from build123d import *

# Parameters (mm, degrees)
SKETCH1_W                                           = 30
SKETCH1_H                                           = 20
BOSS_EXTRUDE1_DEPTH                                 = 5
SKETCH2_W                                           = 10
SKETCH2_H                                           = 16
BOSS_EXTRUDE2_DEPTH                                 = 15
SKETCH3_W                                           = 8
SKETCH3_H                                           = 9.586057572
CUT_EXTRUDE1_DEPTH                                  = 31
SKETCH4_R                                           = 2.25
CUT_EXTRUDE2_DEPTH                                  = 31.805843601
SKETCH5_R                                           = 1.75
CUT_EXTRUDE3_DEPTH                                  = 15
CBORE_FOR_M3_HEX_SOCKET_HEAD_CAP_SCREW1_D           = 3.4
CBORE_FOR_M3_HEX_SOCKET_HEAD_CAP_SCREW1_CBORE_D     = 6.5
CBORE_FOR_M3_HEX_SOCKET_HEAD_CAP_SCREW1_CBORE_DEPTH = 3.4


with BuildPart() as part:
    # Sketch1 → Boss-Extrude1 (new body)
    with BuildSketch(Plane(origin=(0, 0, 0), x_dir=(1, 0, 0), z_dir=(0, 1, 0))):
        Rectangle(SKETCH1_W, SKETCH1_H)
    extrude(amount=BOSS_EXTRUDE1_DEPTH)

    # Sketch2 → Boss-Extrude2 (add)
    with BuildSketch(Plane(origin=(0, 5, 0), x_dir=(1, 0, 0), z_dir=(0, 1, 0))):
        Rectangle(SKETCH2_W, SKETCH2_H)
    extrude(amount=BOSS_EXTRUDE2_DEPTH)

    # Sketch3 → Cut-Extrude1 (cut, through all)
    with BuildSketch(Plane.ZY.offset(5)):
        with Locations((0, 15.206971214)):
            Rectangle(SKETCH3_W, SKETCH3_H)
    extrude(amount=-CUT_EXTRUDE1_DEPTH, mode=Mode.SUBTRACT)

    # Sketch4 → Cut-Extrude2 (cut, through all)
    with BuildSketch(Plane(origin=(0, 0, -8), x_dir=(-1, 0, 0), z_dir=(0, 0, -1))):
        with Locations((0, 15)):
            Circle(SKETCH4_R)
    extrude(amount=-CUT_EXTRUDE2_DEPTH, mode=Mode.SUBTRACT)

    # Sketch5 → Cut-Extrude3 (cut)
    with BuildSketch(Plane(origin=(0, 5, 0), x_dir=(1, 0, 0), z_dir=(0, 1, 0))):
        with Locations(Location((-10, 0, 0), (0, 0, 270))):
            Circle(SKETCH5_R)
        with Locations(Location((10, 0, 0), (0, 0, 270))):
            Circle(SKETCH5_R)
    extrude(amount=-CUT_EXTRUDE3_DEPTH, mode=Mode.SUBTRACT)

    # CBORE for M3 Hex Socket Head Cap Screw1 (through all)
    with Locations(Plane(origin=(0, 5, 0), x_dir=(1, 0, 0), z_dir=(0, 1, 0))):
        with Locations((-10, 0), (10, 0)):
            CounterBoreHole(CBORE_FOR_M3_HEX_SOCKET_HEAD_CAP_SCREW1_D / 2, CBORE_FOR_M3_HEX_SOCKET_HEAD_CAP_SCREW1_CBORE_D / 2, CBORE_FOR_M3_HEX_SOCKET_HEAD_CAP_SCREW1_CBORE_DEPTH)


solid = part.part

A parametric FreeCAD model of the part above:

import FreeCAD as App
import Part
import Sketcher

V = App.Vector
Q = App.Units.Quantity


def add_polygon(sketch, points):
    """Adds a closed chain of lines whose ends are joined by coincident constraints."""
    first, n = sketch.GeometryCount, len(points)
    for a, b in zip(points, points[1:] + points[:1]):
        sketch.addGeometry(Part.LineSegment(App.Vector(*a, 0), App.Vector(*b, 0)), False)
    for i in range(n):
        sketch.addConstraint(Sketcher.Constraint("Coincident", first + i, 2, first + (i + 1) % n, 1))

doc = App.newDocument("Part")
body = doc.addObject("PartDesign::Body", "Body")

# Sketch on XZ plane
sketch1 = body.newObject("Sketcher::SketchObject", "Sketch")
sketch1.AttachmentSupport = (doc.getObject("XZ_Plane"), [""])
sketch1.MapMode = "FlatFace"
add_polygon(sketch1, [(-15, -10), (-15, 10), (15, 10), (15, -10)])  # lines 0-3
sketch1.addConstraint([
    Sketcher.Constraint("Vertical", 0),
    Sketcher.Constraint("Horizontal", 1),
    Sketcher.Constraint("Vertical", 2),
    Sketcher.Constraint("Horizontal", 3),
    Sketcher.Constraint("Symmetric", 0, 2, 2, 2, -1, 1),
    Sketcher.Constraint("DistanceX", 1, 1, 1, 2, Q("30 mm")),
    Sketcher.Constraint("DistanceY", 0, 1, 0, 2, Q("20 mm")),
])
pad1 = body.newObject("PartDesign::Pad", "Pad")
pad1.Profile = sketch1
pad1.Length = 5
pad1.Reversed = True

# Sketch on XZ plane
sketch2 = body.newObject("Sketcher::SketchObject", "Sketch001")
sketch2.AttachmentSupport = (doc.getObject("XZ_Plane"), [""])
sketch2.MapMode = "FlatFace"
sketch2.AttachmentOffset = App.Placement(V(0, 0, -5), App.Rotation())
add_polygon(sketch2, [(-5, -8), (-5, 8), (5, 8), (5, -8)])  # lines 0-3
sketch2.addConstraint([
    Sketcher.Constraint("Vertical", 0),
    Sketcher.Constraint("Horizontal", 1),
    Sketcher.Constraint("Vertical", 2),
    Sketcher.Constraint("Horizontal", 3),
    Sketcher.Constraint("Symmetric", 0, 2, 2, 2, -1, 1),
    Sketcher.Constraint("DistanceX", 1, 1, 1, 2, Q("10 mm")),
    Sketcher.Constraint("DistanceY", 0, 1, 0, 2, Q("16 mm")),
])
pad2 = body.newObject("PartDesign::Pad", "Pad001")
pad2.Profile = sketch2
pad2.Length = 15
pad2.Reversed = True

# Sketch on YZ plane
sketch3 = body.newObject("Sketcher::SketchObject", "Sketch002")
sketch3.AttachmentSupport = (doc.getObject("YZ_Plane"), [""])
sketch3.MapMode = "FlatFace"
sketch3.AttachmentOffset = App.Placement(V(0, 0, -5), App.Rotation())
add_polygon(sketch3, [(20, -4), (10, -4), (10, 4), (20, 4)])  # lines 0-3
sketch3.addConstraint([
    Sketcher.Constraint("Horizontal", 0),
    Sketcher.Constraint("Vertical", 1),
    Sketcher.Constraint("Horizontal", 2),
    Sketcher.Constraint("Vertical", 3),
    Sketcher.Constraint("DistanceY", 1, 1, 1, 2, Q("8 mm")),
    Sketcher.Constraint("DistanceY", 0, 2, -1, 1, Q("4 mm")),
    Sketcher.Constraint("DistanceX", -1, 1, 2, 2, Q("20 mm")),
    Sketcher.Constraint("DistanceX", 0, 2, 0, 1, Q("9.586058 mm")),
])
pocket1 = body.newObject("PartDesign::Pocket", "Pocket")
pocket1.Profile = sketch3
pocket1.Type = "ThroughAll"
pocket1.Reversed = True

# Sketch on XY plane
sketch4 = body.newObject("Sketcher::SketchObject", "Sketch003")
sketch4.AttachmentSupport = (doc.getObject("XY_Plane"), [""])
sketch4.MapMode = "FlatFace"
sketch4.AttachmentOffset = App.Placement(V(0, 0, -8), App.Rotation())
sketch4.addGeometry(Part.Circle(V(0, 15, 0), V(0, 0, 1), 2.2), False)
sketch4.addConstraint([
    Sketcher.Constraint("PointOnObject", 0, 3, -2),
    Sketcher.Constraint("Diameter", 0, Q("4.5 mm")),
    Sketcher.Constraint("DistanceY", -1, 1, 0, 3, Q("15 mm")),
])
pocket2 = body.newObject("PartDesign::Pocket", "Pocket001")
pocket2.Profile = sketch4
pocket2.Type = "ThroughAll"
pocket2.Reversed = True

# Sketch on XZ plane
sketch5 = body.newObject("Sketcher::SketchObject", "Sketch004")
sketch5.AttachmentSupport = (doc.getObject("XZ_Plane"), [""])
sketch5.MapMode = "FlatFace"
sketch5.AttachmentOffset = App.Placement(V(0, 0, -5), App.Rotation())
sketch5.addGeometry([
    Part.Circle(V(-10, 0, 0), V(0, 0, 1), 1.8),
    Part.Circle(V(10, 0, 0), V(0, 0, 1), 1.8),
], False)
sketch5.addConstraint([
    Sketcher.Constraint("Equal", 0, 1),
    Sketcher.Constraint("Symmetric", 0, 3, 1, 3, -1, 1),
    Sketcher.Constraint("PointOnObject", 0, 3, -1),
    Sketcher.Constraint("Diameter", 0, Q("3.5 mm")),
    Sketcher.Constraint("DistanceX", 0, 3, -1, 1, Q("10 mm")),
])
pocket3 = body.newObject("PartDesign::Pocket", "Pocket002")
pocket3.Profile = sketch5
pocket3.Length = 15
pocket3.Reversed = True

# Sketch on XZ plane
sketch6 = body.newObject("Sketcher::SketchObject", "Sketch005")
sketch6.AttachmentSupport = (doc.getObject("XZ_Plane"), [""])
sketch6.MapMode = "FlatFace"
sketch6.AttachmentOffset = App.Placement(V(0, 0, -5), App.Rotation())
sketch6.addGeometry([
    Part.Circle(V(-10, 0, 0), V(0, 0, 1), 1.7),
    Part.Circle(V(10, 0, 0), V(0, 0, 1), 1.7),
], False)
sketch6.addConstraint([
    Sketcher.Constraint("Equal", 0, 1),
    Sketcher.Constraint("Symmetric", 0, 3, 1, 3, -1, 1),
    Sketcher.Constraint("PointOnObject", 0, 3, -1),
    Sketcher.Constraint("Diameter", 0, Q("3.4 mm")),
    Sketcher.Constraint("DistanceX", 0, 3, -1, 1, Q("10 mm")),
])
doc.recompute()
hole = body.newObject("PartDesign::Hole", "Hole")
hole.Profile = sketch6
hole.ThreadType = "None"
hole.Diameter = 3.4
hole.DepthType = "ThroughAll"
hole.HoleCutType = "Counterbore"
hole.HoleCutDiameter = 6.5
hole.HoleCutDepth = 3.4
hole.Reversed = True

doc.recompute()
